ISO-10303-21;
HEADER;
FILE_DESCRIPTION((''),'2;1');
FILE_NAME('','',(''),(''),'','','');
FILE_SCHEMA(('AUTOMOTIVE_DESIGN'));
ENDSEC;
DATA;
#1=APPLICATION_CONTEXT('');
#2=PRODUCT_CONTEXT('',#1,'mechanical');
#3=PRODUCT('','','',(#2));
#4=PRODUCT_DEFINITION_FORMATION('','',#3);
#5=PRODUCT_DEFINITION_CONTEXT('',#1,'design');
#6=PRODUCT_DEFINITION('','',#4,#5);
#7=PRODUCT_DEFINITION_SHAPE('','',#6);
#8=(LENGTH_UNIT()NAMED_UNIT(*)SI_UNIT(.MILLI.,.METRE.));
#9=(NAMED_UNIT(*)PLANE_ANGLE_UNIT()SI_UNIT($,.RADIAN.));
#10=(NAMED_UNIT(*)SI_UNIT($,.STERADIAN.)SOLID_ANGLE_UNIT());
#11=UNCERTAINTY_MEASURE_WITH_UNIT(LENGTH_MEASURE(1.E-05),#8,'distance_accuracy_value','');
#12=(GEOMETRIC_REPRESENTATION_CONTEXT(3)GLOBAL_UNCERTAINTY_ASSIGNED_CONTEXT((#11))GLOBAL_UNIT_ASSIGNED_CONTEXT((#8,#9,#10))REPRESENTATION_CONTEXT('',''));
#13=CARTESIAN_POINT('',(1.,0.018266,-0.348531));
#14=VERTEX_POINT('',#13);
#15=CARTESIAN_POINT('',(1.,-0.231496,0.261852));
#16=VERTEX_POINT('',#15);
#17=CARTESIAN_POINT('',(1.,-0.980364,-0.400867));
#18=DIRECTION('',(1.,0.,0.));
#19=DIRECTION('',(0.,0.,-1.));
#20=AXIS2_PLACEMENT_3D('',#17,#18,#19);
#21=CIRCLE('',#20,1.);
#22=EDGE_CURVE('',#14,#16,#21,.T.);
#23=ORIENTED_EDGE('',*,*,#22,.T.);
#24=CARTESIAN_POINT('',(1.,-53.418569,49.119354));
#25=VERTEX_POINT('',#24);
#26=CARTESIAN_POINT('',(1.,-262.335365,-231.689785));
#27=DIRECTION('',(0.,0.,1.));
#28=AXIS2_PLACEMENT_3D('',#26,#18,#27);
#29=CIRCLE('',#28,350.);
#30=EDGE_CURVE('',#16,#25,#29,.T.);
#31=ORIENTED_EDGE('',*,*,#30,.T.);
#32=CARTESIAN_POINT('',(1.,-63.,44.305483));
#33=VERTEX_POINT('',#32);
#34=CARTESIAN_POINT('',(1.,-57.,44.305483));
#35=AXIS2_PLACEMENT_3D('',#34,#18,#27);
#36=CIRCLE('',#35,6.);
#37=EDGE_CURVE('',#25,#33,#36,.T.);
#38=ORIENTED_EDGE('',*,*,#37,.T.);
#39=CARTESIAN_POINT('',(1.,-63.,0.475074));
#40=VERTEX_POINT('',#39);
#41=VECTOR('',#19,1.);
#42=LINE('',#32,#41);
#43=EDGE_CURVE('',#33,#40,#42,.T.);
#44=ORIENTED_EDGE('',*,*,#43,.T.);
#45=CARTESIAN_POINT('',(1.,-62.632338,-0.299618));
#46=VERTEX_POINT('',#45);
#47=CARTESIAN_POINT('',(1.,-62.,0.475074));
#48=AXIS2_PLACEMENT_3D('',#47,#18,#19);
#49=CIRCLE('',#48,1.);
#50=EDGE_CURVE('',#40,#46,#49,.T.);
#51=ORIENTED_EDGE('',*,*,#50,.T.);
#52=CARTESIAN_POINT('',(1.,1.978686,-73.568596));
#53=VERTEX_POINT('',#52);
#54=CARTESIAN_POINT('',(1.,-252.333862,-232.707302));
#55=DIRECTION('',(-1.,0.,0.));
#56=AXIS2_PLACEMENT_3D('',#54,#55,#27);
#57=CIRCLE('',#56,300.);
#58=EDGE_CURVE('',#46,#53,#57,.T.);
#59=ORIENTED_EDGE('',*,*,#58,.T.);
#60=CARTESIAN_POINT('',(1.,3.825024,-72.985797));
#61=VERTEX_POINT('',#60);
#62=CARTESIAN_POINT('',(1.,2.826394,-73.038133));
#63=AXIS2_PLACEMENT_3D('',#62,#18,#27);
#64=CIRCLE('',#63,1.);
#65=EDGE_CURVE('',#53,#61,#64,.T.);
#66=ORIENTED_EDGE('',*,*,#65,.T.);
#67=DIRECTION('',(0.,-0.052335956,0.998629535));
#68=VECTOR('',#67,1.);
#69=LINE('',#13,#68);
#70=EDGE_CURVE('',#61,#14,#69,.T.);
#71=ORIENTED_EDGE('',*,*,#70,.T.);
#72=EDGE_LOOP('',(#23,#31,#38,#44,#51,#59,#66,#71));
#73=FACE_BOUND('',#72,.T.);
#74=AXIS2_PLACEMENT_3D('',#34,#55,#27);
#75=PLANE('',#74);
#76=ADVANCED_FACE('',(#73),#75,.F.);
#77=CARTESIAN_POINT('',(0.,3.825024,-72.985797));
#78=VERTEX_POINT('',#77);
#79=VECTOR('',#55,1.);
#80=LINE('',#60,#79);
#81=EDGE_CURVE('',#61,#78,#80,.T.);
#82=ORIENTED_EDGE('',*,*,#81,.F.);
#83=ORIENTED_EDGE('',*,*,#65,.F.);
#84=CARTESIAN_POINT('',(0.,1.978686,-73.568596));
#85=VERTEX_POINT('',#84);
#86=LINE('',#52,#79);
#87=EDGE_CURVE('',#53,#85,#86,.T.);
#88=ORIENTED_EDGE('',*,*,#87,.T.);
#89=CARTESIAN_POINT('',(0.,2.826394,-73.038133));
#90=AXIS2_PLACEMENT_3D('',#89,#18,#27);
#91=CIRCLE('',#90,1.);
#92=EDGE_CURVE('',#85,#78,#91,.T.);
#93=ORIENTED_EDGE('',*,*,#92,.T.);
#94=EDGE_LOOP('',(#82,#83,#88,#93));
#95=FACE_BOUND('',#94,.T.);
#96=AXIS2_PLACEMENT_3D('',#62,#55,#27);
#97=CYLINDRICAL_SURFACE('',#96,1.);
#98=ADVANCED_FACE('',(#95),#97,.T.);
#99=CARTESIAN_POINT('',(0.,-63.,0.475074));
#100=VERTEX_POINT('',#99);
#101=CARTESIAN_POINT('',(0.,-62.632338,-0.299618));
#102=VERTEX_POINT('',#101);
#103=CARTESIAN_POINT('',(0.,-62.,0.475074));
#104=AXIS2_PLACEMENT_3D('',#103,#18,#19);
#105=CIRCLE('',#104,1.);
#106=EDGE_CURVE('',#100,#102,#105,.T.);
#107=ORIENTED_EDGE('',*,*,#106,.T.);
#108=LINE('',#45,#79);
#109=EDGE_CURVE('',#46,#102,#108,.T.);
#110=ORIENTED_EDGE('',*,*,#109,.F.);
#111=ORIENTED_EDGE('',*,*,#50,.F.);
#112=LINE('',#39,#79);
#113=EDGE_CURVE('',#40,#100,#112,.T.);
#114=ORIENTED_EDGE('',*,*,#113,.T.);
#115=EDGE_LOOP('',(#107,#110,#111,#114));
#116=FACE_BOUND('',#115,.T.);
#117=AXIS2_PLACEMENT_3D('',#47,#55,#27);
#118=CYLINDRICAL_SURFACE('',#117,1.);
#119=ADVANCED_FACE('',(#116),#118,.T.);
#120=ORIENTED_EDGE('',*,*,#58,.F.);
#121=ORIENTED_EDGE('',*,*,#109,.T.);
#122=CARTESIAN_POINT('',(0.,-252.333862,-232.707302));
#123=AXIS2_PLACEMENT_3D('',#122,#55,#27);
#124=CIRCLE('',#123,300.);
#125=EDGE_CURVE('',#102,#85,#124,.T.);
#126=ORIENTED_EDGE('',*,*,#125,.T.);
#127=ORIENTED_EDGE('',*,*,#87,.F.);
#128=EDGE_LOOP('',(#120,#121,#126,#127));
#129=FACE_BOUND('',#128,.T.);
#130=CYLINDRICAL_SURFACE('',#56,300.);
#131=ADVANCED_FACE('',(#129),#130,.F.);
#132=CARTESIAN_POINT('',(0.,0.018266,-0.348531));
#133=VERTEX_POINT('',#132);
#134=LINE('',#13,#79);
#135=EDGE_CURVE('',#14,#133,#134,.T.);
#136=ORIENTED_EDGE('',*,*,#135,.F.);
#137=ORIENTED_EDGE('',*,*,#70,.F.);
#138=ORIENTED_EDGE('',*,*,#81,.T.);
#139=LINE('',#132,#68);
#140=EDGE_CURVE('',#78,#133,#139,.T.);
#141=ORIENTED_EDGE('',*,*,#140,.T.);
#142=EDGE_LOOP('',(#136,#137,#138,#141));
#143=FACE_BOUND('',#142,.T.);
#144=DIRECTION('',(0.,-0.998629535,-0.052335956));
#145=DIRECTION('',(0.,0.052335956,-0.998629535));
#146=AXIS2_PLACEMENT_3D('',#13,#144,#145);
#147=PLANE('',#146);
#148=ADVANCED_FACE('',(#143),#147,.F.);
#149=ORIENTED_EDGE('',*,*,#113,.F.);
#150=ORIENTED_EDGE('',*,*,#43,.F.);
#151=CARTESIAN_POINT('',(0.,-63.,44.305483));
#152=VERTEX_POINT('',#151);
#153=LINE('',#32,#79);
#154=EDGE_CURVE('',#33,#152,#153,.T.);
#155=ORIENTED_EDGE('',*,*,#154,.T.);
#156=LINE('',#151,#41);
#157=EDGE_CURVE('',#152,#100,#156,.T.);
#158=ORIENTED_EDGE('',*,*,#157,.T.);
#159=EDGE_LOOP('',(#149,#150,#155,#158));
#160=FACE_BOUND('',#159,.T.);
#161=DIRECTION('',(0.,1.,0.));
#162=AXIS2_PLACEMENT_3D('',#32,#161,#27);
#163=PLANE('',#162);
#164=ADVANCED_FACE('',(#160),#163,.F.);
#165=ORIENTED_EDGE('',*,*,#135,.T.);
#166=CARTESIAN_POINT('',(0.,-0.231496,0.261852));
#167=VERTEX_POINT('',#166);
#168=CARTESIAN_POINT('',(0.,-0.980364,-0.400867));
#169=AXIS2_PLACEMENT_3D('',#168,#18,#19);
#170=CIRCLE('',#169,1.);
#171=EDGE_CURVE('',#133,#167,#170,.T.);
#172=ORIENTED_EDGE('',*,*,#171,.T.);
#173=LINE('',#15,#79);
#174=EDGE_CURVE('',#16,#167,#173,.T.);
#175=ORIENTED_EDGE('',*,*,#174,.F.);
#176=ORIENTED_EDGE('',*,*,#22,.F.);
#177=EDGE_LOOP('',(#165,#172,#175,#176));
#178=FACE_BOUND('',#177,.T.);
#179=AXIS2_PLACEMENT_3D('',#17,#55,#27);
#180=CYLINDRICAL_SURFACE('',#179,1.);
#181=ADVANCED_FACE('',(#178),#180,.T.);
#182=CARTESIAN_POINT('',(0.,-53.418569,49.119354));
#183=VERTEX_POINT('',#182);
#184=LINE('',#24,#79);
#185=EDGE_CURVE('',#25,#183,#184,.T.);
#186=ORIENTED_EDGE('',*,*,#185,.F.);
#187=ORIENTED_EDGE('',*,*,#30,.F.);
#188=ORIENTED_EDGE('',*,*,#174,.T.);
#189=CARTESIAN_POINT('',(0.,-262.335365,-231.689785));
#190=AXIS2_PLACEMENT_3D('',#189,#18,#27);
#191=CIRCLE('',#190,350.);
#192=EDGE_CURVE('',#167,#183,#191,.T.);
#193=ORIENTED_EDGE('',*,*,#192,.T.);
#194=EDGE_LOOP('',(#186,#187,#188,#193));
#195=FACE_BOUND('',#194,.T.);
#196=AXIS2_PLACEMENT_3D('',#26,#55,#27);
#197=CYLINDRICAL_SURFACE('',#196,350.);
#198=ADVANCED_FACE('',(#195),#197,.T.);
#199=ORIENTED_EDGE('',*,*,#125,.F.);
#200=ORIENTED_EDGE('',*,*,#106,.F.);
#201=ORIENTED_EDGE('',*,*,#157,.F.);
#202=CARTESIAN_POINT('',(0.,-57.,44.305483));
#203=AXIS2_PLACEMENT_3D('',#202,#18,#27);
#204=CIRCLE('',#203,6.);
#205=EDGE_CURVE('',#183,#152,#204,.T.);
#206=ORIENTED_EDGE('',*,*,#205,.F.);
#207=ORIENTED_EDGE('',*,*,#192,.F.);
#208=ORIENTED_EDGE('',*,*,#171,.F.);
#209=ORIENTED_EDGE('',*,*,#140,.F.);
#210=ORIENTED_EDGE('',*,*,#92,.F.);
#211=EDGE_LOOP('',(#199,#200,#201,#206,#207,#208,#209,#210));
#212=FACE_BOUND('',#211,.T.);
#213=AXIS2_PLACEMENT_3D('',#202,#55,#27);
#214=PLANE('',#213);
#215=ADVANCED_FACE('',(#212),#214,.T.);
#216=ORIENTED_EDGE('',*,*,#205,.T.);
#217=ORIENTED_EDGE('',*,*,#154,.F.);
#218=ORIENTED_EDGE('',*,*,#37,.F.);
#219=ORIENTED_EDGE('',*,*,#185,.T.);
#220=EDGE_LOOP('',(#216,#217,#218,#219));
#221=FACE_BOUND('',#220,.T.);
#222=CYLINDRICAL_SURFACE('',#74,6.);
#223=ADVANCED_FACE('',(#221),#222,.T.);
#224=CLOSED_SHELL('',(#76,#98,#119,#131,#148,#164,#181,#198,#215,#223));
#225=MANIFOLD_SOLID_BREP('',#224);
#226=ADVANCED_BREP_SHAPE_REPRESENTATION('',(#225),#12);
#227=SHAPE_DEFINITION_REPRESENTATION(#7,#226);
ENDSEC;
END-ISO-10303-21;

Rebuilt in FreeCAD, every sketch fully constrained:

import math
import FreeCAD as App
import Part
import Sketcher
from FreeCAD import Vector
Q = App.Units.Quantity

doc = App.newDocument("Part")
body = doc.addObject("PartDesign::Body", "Body")

sketch1 = doc.addObject("Sketcher::SketchObject", "Sketch")
body.addObject(sketch1)
sketch1.AttachmentSupport = (doc.YZ_Plane, [""])
sketch1.MapMode = "FlatFace"
sketch1.addGeometry(Part.LineSegment(Vector(3.825024, -72.985797, 0), Vector(0.018266, -0.348531, 0)), False)
sketch1.addGeometry(Part.ArcOfCircle(Part.Circle(Vector(-0.980364, -0.400867, 0), Vector(0, 0, 1), 1), math.radians(3), math.radians(41.507568)), False)
sketch1.addGeometry(Part.ArcOfCircle(Part.Circle(Vector(-262.335365, -231.689785, 0), Vector(0, 0, 1), 350), math.radians(41.507567), math.radians(53.351436)), False)
sketch1.addGeometry(Part.ArcOfCircle(Part.Circle(Vector(-57, 44.305483, 0), Vector(0, 0, 1), 6), math.radians(53.351436), math.radians(180)), False)
sketch1.addGeometry(Part.LineSegment(Vector(-63, 44.305483, 0), Vector(-63, 0.475074, 0)), False)
sketch1.addGeometry(Part.ArcOfCircle(Part.Circle(Vector(-62, 0.475074, 0), Vector(0, 0, 1), 1), math.radians(180), math.radians(230.777142)), False)
sketch1.addGeometry(Part.ArcOfCircle(Part.Circle(Vector(-252.333862, -232.707302, 0), Vector(0, 0, 1), 300), math.radians(32.0367), math.radians(50.777142)), False)
sketch1.addGeometry(Part.ArcOfCircle(Part.Circle(Vector(2.826394, -73.038133, 0), Vector(0, 0, 1), 1), math.radians(-147.9633), math.radians(3)), False)
sketch1.addConstraint(Sketcher.Constraint("Tangent", 0, 2, 1, 1))
sketch1.addConstraint(Sketcher.Constraint("Tangent", 1, 2, 2, 1))
sketch1.addConstraint(Sketcher.Constraint("Tangent", 2, 2, 3, 1))
sketch1.addConstraint(Sketcher.Constraint("Tangent", 3, 2, 4, 1))
sketch1.addConstraint(Sketcher.Constraint("Tangent", 4, 2, 5, 1))
sketch1.addConstraint(Sketcher.Constraint("Tangent", 5, 2, 6, 2))
sketch1.addConstraint(Sketcher.Constraint("Tangent", 6, 1, 7, 1))
sketch1.addConstraint(Sketcher.Constraint("Tangent", 7, 2, 0, 1))
sketch1.addConstraint(Sketcher.Constraint("Vertical", 4))
sketch1.addConstraint(Sketcher.Constraint("Equal", 1, 5))
sketch1.addConstraint(Sketcher.Constraint("Equal", 5, 7))
sketch1.addConstraint(Sketcher.Constraint("Radius", 1, Q("1 mm")))
sketch1.addConstraint(Sketcher.Constraint("Radius", 2, Q("350 mm")))
sketch1.addConstraint(Sketcher.Constraint("Radius", 3, Q("6 mm")))
sketch1.addConstraint(Sketcher.Constraint("Radius", 6, Q("300 mm")))
sketch1.addConstraint(Sketcher.Constraint("Angle", 0, Q("93 deg")))
sketch1.addConstraint(Sketcher.Constraint("DistanceX", 3, 3, -1, 1, Q("57 mm")))
sketch1.addConstraint(Sketcher.Constraint("DistanceX", 2, 3, 1, 3, Q("261.355001 mm")))
sketch1.addConstraint(Sketcher.Constraint("DistanceY", 4, 2, 4, 1, Q("43.830409 mm")))
sketch1.addConstraint(Sketcher.Constraint("DistanceX", 6, 3, 1, 3, Q("251.353499 mm")))
sketch1.addConstraint(Sketcher.Constraint("Distance", 0, Q("72.73695 mm")))
sketch1.addConstraint(Sketcher.Constraint("DistanceY", 0, 2, -1, 1, Q("0.348531 mm")))
pad1 = doc.addObject("PartDesign::Pad", "Pad")
body.addObject(pad1)
pad1.Profile = sketch1
pad1.Length = 1

doc.recompute()
